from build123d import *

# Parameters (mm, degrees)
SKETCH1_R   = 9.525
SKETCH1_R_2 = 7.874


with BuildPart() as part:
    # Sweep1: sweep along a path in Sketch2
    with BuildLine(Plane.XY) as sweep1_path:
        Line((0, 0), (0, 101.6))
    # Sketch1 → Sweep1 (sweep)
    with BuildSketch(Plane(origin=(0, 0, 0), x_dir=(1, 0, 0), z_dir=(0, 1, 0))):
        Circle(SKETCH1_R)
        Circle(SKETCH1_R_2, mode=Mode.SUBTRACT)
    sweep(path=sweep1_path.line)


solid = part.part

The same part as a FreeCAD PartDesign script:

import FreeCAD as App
import Part
import Sketcher
from FreeCAD import Vector
Q = App.Units.Quantity

doc = App.newDocument("Part")
body = doc.addObject("PartDesign::Body", "Body")

# Sketch on XZ plane
sketch1 = body.newObject("Sketcher::SketchObject", "Sketch")
sketch1.AttachmentSupport = (doc.getObject("XZ_Plane"), [""])
sketch1.MapMode = "FlatFace"
sketch1.addGeometry([
    Part.Circle(Vector(0, 0, 0), Vector(0, 0, 1), 10),
    Part.Circle(Vector(0, 0, 0), Vector(0, 0, 1), 8),
], False)
sketch1.addConstraint([
    Sketcher.Constraint("Coincident", 0, 3, -1, 1),
    Sketcher.Constraint("Coincident", 1, 3, -1, 1),
    Sketcher.Constraint("Diameter", 0, Q("0.75 in")),
    Sketcher.Constraint("Diameter", 1, Q("0.62 in")),
])

# Sketch on XY plane
sketch2 = body.newObject("Sketcher::SketchObject", "Sketch001")
sketch2.AttachmentSupport = (doc.getObject("XY_Plane"), [""])
sketch2.MapMode = "FlatFace"
sketch2.addGeometry(Part.LineSegment(Vector(0, 0, 0), Vector(0, 102, 0)), False)
sketch2.addConstraint([
    Sketcher.Constraint("Vertical", 0),
    Sketcher.Constraint("Coincident", 0, 1, -1, 1),
    Sketcher.Constraint("DistanceY", 0, 1, 0, 2, Q("4 in")),
])
doc.recompute()

additivepipe = body.newObject("PartDesign::AdditivePipe", "AdditivePipe")
additivepipe.Profile = sketch1
additivepipe.Spine = (sketch2, ["Edge1"])

doc.recompute()
